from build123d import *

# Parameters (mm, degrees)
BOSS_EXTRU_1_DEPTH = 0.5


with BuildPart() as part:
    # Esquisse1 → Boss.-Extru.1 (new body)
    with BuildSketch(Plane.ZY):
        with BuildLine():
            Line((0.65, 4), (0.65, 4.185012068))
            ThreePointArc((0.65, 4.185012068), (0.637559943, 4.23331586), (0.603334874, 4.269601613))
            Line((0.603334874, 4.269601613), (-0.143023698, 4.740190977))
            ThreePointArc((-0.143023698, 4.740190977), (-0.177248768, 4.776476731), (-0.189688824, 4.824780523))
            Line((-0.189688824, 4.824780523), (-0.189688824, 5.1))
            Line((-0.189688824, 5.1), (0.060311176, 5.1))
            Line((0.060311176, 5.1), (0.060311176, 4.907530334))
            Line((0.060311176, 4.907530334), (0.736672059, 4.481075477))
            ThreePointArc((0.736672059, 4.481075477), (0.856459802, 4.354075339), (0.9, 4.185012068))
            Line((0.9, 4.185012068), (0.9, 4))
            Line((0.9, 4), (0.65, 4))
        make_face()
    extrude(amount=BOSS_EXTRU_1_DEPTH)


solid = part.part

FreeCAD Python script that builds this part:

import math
import FreeCAD as App
import Part
import Sketcher
from FreeCAD import Vector

doc = App.newDocument("Part")
body = doc.addObject("PartDesign::Body", "Body")

# Sketch on YZ plane
sketch1 = body.newObject("Sketcher::SketchObject", "Sketch")
sketch1.AttachmentSupport = (doc.getObject("YZ_Plane"), [""])
sketch1.MapMode = "FlatFace"
sketch1.addGeometry(Part.LineSegment(Vector(4.19, 0.65, 0), Vector(4, 0.65, 0)), False)
sketch1.addGeometry(Part.LineSegment(Vector(4, 0.65, 0), Vector(4, 0.9, 0)), False)
sketch1.addGeometry(Part.LineSegment(Vector(4, 0.9, 0), Vector(4.19, 0.9, 0)), False)
sketch1.addGeometry(Part.ArcOfCircle(Part.Circle(Vector(4.19, 0.55, 0), Vector(0, 0, 1), 0.35), math.radians(32), math.radians(90)), False)
sketch1.addGeometry(Part.LineSegment(Vector(4.48, 0.74, 0), Vector(4.91, 0.06, 0)), False)
sketch1.addGeometry(Part.LineSegment(Vector(4.91, 0.06, 0), Vector(5.1, 0.06, 0)), False)
sketch1.addGeometry(Part.LineSegment(Vector(5.1, 0.06, 0), Vector(5.1, -0.19, 0)), False)
sketch1.addGeometry(Part.LineSegment(Vector(5.1, -0.19, 0), Vector(4.82, -0.19, 0)), False)
sketch1.addGeometry(Part.ArcOfCircle(Part.Circle(Vector(4.82, -0.09, 0), Vector(0, 0, 1), 0.1), math.radians(-148), math.radians(-90)), False)
sketch1.addGeometry(Part.LineSegment(Vector(4.74, -0.14, 0), Vector(4.27, 0.6, 0)), False)
sketch1.addGeometry(Part.ArcOfCircle(Part.Circle(Vector(4.19, 0.55, 0), Vector(0, 0, 1), 0.1), math.radians(32), math.radians(90)), False)
sketch1.addConstraint(Sketcher.Constraint("Coincident", 0, 2, 1, 1))
sketch1.addConstraint(Sketcher.Constraint("Coincident", 1, 2, 2, 1))
sketch1.addConstraint(Sketcher.Constraint("Tangent", 2, 2, 3, 2))
sketch1.addConstraint(Sketcher.Constraint("Tangent", 3, 1, 4, 1))
sketch1.addConstraint(Sketcher.Constraint("Coincident", 4, 2, 5, 1))
sketch1.addConstraint(Sketcher.Constraint("Coincident", 5, 2, 6, 1))
sketch1.addConstraint(Sketcher.Constraint("Coincident", 6, 2, 7, 1))
sketch1.addConstraint(Sketcher.Constraint("Tangent", 7, 2, 8, 2))
sketch1.addConstraint(Sketcher.Constraint("Tangent", 8, 1, 9, 1))
sketch1.addConstraint(Sketcher.Constraint("Tangent", 9, 2, 10, 1))
sketch1.addConstraint(Sketcher.Constraint("Tangent", 10, 2, 0, 1))
sketch1.addConstraint(Sketcher.Constraint("Horizontal", 0))
sketch1.addConstraint(Sketcher.Constraint("Vertical", 1))
sketch1.addConstraint(Sketcher.Constraint("Horizontal", 2))
sketch1.addConstraint(Sketcher.Constraint("Horizontal", 5))
sketch1.addConstraint(Sketcher.Constraint("Vertical", 6))
sketch1.addConstraint(Sketcher.Constraint("Horizontal", 7))
sketch1.addConstraint(Sketcher.Constraint("Coincident", 10, 3, 3, 3))
sketch1.addConstraint(Sketcher.Constraint("Equal", 8, 10))
sketch1.addConstraint(Sketcher.Constraint("Parallel", 4, 9))
sketch1.addConstraint(Sketcher.Constraint("Equal", 1, 6))
sketch1.addConstraint(Sketcher.Constraint("Radius", 8, 0.1))
sketch1.addConstraint(Sketcher.Constraint("Radius", 3, 0.35))
sketch1.addConstraint(Sketcher.Constraint("DistanceX", -1, 1, 0, 2, 4.0))
sketch1.addConstraint(Sketcher.Constraint("DistanceY", -1, 1, 1, 2, 0.9))
sketch1.addConstraint(Sketcher.Constraint("DistanceX", -1, 1, 5, 2, 5.1))
sketch1.addConstraint(Sketcher.Constraint("DistanceX", 5, 1, 5, 2, 0.19247))
sketch1.addConstraint(Sketcher.Constraint("DistanceX", 7, 2, 7, 1, 0.275219))
sketch1.addConstraint(Sketcher.Constraint("DistanceX", -1, 1, 9, 2, 4.269602))
pad1 = body.newObject("PartDesign::Pad", "Pad")
pad1.Profile = sketch1
pad1.Length = 0.5
pad1.Reversed = True

doc.recompute()
